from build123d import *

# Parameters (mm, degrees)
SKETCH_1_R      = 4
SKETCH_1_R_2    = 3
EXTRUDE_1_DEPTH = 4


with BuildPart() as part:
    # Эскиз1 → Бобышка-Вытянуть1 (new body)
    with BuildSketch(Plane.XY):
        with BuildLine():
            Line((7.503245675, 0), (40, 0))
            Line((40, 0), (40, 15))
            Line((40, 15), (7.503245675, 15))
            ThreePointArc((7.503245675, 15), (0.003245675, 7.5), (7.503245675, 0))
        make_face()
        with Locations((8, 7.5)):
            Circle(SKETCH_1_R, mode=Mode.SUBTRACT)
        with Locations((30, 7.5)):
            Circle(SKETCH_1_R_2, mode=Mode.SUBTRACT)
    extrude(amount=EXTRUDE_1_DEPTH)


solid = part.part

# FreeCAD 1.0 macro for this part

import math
import FreeCAD as App
import Part
import Sketcher

V = App.Vector

doc = App.newDocument("Part")
params = doc.addObject("Spreadsheet::Sheet", "Params")
for row, (alias, value) in enumerate([
    ("sketch1_diameter", "8 mm"),
    ("sketch1_diameter2", "6 mm"),
    ("sketch1_radius", "7.5 mm"),
    ("pad1_length", "4 mm"),
], start=1):
    params.set(f"A{row}", alias)
    params.set(f"B{row}", "=" + value)
    params.setAlias(f"B{row}", alias)

body = doc.addObject("PartDesign::Body", "Body")

sketch1 = body.newObject("Sketcher::SketchObject", "Sketch")
sketch1.AttachmentSupport = (doc.getObject("XY_Plane"), [""])
sketch1.MapMode = "FlatFace"
sketch1.addGeometry(Part.LineSegment(V(7.5, 0, 0), V(40, 0, 0)), False)
sketch1.addGeometry(Part.LineSegment(V(40, 0, 0), V(40, 15, 0)), False)
sketch1.addGeometry(Part.LineSegment(V(40, 15, 0), V(7.5, 15, 0)), False)
sketch1.addGeometry(Part.ArcOfCircle(Part.Circle(V(7.5, 7.5, 0), V(0, 0, 1), 7.5), math.radians(90), math.radians(270)), False)
sketch1.addGeometry(Part.Circle(V(8, 7.5, 0), V(0, 0, 1), 4), False)
sketch1.addGeometry(Part.Circle(V(30, 7.5, 0), V(0, 0, 1), 3), False)
sketch1.addConstraint(Sketcher.Constraint("Coincident", 0, 2, 1, 1))
sketch1.addConstraint(Sketcher.Constraint("Coincident", 1, 2, 2, 1))
sketch1.addConstraint(Sketcher.Constraint("Tangent", 2, 2, 3, 1))
sketch1.addConstraint(Sketcher.Constraint("Tangent", 3, 2, 0, 1))
sketch1.addConstraint(Sketcher.Constraint("Horizontal", 0))
sketch1.addConstraint(Sketcher.Constraint("Vertical", 1))
sketch1.addConstraint(Sketcher.Constraint("Horizontal", 2))
sketch1.addConstraint(Sketcher.Constraint("PointOnObject", 0, 2, -1))
sketch1.addConstraint(Sketcher.Constraint("Horizontal", 3, 3, 4, 3))
sketch1.addConstraint(Sketcher.Constraint("Horizontal", 4, 3, 5, 3))
sketch1.addConstraint(Sketcher.Constraint("Diameter", 4, 8.0))
sketch1.addConstraint(Sketcher.Constraint("Diameter", 5, 6.0))
sketch1.addConstraint(Sketcher.Constraint("Radius", 3, 7.5))
sketch1.addConstraint(Sketcher.Constraint("DistanceX", -1, 1, 4, 3, 8.0))
sketch1.addConstraint(Sketcher.Constraint("DistanceX", -1, 1, 5, 3, 30.0))
sketch1.addConstraint(Sketcher.Constraint("DistanceX", -1, 1, 0, 2, 40.0))
sketch1.addConstraint(Sketcher.Constraint("DistanceX", 0, 1, 0, 2, 32.496754))
sketch1.setExpression("Constraints[10]", "Params.sketch1_diameter")
sketch1.setExpression("Constraints[11]", "Params.sketch1_diameter2")
sketch1.setExpression("Constraints[12]", "Params.sketch1_radius")
pad1 = body.newObject("PartDesign::Pad", "Pad")
pad1.Profile = sketch1
pad1.setExpression("Length", "Params.pad1_length")

doc.recompute()
